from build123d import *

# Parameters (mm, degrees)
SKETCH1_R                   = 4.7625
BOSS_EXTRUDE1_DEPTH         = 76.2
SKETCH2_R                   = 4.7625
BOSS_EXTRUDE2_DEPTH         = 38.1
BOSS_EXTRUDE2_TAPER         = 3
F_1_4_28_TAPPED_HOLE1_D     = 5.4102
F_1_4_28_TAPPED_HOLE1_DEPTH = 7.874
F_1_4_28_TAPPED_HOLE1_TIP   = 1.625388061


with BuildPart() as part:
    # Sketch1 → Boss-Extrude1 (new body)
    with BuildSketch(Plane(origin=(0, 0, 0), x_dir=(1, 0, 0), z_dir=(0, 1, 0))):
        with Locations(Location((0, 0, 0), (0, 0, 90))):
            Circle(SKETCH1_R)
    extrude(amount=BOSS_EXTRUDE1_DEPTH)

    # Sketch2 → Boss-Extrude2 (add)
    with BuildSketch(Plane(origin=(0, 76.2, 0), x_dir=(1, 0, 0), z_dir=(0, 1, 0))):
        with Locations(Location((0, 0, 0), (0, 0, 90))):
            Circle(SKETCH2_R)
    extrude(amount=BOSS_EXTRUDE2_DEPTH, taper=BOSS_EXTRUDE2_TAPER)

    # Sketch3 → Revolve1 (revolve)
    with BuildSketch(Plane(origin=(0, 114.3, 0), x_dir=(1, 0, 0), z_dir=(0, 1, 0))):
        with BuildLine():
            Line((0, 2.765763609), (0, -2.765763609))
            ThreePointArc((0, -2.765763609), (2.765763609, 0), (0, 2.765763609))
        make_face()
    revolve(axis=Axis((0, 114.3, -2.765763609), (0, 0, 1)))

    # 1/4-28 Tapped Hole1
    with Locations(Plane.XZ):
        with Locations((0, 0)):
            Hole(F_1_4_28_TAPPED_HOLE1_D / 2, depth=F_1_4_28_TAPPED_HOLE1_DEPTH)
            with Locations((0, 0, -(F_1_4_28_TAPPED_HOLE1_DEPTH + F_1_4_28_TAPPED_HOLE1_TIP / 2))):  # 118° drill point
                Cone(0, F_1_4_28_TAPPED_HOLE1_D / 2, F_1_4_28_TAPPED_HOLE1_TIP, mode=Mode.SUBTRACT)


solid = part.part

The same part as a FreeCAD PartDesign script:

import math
import FreeCAD as App
import Part
import Sketcher
Q = App.Units.Quantity

doc = App.newDocument("Part")
body = doc.addObject("PartDesign::Body", "Body")

# Sketch on XZ plane
sketch1 = body.newObject("Sketcher::SketchObject", "Sketch")
sketch1.AttachmentSupport = (doc.getObject("XZ_Plane"), [""])
sketch1.MapMode = "FlatFace"
sketch1.addGeometry(Part.Circle(App.Vector(0, 0, 0), App.Vector(0, 0, 1), 4.8), False)
sketch1.addConstraint([
    Sketcher.Constraint("Coincident", 0, 3, -1, 1),
    Sketcher.Constraint("Diameter", 0, Q("0.375 in")),
])
pad1 = body.newObject("PartDesign::Pad", "Pad")
pad1.Profile = sketch1
pad1.Length = Q("3 in")
pad1.Reversed = True

# Sketch on XZ plane
sketch2 = body.newObject("Sketcher::SketchObject", "Sketch001")
sketch2.AttachmentSupport = (doc.getObject("XZ_Plane"), [""])
sketch2.MapMode = "FlatFace"
sketch2.AttachmentOffset = App.Placement(App.Vector(0, 0, -3 * 25.4), App.Rotation())
sketch2.addGeometry(Part.Circle(App.Vector(0, 0, 0), App.Vector(0, 0, 1), 4.8), False)
sketch2.addConstraint([
    Sketcher.Constraint("Coincident", 0, 3, -1, 1),
    Sketcher.Constraint("Diameter", 0, Q("0.375 in")),
])
pad2 = body.newObject("PartDesign::Pad", "Pad001")
pad2.Profile = sketch2
pad2.Length = Q("1.5 in")
pad2.Reversed = True
pad2.TaperAngle = -3

# Sketch on XZ plane
sketch3 = body.newObject("Sketcher::SketchObject", "Sketch002")
sketch3.AttachmentSupport = (doc.getObject("XZ_Plane"), [""])
sketch3.MapMode = "FlatFace"
sketch3.AttachmentOffset = App.Placement(App.Vector(0, 0, -4.5 * 25.4), App.Rotation())
sketch3.addGeometry([
    Part.LineSegment(App.Vector(0, -2.8, 0), App.Vector(0, 2.8, 0)),
    Part.ArcOfCircle(Part.Circle(App.Vector(0, 0, 0), App.Vector(0, 0, 1), 2.8), math.radians(-90), math.radians(90)),
], False)
sketch3.addConstraint([
    Sketcher.Constraint("Coincident", 0, 1, 1, 1),
    Sketcher.Constraint("Coincident", 1, 2, 0, 2),
    Sketcher.Constraint("Vertical", 0),
    Sketcher.Constraint("Coincident", 1, 3, -1, 1),
    Sketcher.Constraint("PointOnObject", 0, 1, -2),
    Sketcher.Constraint("Radius", 1, Q("2.765764 mm")),
])
revolution = body.newObject("PartDesign::Revolution", "Revolution")
revolution.Profile = sketch3
revolution.ReferenceAxis = (sketch3, ["V_Axis"])
revolution.Angle = 360

# Sketch on XZ plane
sketch4 = body.newObject("Sketcher::SketchObject", "Sketch003")
sketch4.AttachmentSupport = (doc.getObject("XZ_Plane"), [""])
sketch4.MapMode = "FlatFace"
sketch4.addGeometry(Part.Circle(App.Vector(0, 0, 0), App.Vector(0, 0, 1), 2.7), False)
sketch4.addConstraint([
    Sketcher.Constraint("Coincident", 0, 3, -1, 1),
    Sketcher.Constraint("Diameter", 0, Q("0.213 in")),
])
doc.recompute()
hole = body.newObject("PartDesign::Hole", "Hole")
hole.Profile = sketch4
hole.ThreadType = "None"
hole.Diameter = Q("0.213 in")
hole.DepthType = "Dimension"
hole.Depth = Q("0.31 in")
hole.DrillPoint = "Angled"
hole.DrillPointAngle = 118

doc.recompute()
